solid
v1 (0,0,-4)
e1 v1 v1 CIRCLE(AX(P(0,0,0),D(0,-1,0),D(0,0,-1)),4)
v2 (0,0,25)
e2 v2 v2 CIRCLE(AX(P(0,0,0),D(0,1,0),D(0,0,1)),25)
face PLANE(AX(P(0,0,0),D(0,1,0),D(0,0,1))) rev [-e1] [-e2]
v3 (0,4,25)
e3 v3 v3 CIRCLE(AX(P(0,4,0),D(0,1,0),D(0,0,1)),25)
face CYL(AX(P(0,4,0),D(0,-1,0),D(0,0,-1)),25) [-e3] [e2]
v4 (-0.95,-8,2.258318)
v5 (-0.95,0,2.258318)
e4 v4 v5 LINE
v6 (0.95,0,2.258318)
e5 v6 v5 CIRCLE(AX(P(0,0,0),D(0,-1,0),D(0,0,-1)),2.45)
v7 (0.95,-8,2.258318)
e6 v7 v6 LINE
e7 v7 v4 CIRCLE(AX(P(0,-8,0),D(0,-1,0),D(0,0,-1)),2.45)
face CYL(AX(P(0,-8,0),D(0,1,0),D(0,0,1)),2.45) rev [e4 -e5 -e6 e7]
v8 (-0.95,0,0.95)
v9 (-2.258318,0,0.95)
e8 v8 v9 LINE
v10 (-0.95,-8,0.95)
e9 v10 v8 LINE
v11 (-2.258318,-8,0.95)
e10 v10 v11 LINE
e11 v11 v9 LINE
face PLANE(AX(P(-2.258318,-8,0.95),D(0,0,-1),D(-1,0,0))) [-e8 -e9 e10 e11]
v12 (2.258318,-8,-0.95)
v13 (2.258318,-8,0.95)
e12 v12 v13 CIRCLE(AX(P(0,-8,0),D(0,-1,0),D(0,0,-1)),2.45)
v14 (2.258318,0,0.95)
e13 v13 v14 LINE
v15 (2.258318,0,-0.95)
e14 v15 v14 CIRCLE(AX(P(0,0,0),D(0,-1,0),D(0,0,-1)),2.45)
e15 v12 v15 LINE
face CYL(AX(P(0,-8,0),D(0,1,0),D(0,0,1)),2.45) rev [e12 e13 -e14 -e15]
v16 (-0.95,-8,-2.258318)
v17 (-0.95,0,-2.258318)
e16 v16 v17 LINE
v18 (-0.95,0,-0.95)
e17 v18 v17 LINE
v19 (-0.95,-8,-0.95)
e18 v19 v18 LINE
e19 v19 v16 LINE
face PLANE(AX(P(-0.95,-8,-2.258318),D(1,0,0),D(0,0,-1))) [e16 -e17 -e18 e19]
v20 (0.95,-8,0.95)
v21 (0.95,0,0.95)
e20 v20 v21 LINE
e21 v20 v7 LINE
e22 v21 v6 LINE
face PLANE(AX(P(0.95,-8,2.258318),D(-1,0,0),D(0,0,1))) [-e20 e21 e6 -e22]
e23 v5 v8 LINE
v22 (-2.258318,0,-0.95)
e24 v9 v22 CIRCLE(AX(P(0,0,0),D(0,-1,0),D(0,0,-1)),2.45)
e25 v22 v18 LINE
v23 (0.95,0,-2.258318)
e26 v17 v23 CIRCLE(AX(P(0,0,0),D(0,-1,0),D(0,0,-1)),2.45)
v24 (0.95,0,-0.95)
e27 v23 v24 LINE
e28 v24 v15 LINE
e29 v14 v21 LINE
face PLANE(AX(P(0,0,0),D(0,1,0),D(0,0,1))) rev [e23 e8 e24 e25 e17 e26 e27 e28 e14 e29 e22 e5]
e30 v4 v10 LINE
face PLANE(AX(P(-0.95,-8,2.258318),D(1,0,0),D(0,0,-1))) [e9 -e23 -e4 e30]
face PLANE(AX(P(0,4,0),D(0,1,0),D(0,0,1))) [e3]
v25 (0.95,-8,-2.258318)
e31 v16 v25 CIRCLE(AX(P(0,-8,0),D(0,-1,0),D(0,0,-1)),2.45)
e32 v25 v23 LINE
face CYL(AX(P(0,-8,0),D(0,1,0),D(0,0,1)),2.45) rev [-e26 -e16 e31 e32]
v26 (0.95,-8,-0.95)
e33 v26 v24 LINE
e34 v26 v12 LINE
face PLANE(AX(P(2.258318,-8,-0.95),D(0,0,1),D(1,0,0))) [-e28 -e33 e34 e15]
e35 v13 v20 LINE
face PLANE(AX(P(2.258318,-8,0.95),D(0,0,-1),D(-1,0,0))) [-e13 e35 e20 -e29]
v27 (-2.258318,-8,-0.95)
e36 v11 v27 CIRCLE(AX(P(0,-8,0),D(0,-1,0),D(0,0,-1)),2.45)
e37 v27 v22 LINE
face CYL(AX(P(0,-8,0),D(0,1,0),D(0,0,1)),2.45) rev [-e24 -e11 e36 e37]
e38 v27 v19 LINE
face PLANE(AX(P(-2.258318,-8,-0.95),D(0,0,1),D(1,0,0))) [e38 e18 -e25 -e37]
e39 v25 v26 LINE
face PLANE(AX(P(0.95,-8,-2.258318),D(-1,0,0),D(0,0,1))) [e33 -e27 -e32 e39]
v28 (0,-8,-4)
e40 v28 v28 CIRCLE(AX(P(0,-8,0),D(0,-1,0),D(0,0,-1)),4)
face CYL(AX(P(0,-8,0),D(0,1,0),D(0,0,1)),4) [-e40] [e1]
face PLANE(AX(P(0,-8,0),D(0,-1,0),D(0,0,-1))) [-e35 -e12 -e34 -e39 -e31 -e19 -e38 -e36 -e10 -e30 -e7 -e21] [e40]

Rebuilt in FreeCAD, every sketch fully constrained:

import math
import FreeCAD as App
import Part
import Sketcher
from FreeCAD import Vector
Q = App.Units.Quantity

doc = App.newDocument("Part")
body = doc.addObject("PartDesign::Body", "Body")

sketch1 = doc.addObject("Sketcher::SketchObject", "Sketch")
body.addObject(sketch1)
sketch1.AttachmentSupport = (doc.XZ_Plane, [""])
sketch1.MapMode = "FlatFace"
sketch1.addGeometry(Part.Circle(Vector(0, 0, 0), Vector(0, 0, 1), 25), False)
sketch1.addConstraint([
    Sketcher.Constraint("Coincident", 0, 3, -1, 1),
    Sketcher.Constraint("Diameter", 0, Q("50 mm")),
])
pad1 = doc.addObject("PartDesign::Pad", "Pad")
body.addObject(pad1)
pad1.Profile = sketch1
pad1.Length = 4
pad1.Reversed = True

sketch2 = doc.addObject("Sketcher::SketchObject", "Sketch001")
body.addObject(sketch2)
sketch2.AttachmentSupport = (doc.XZ_Plane, [""])
sketch2.MapMode = "FlatFace"
sketch2.addGeometry([
    Part.Circle(Vector(0, 0, 0), Vector(0, 0, 1), 4),
    Part.ArcOfCircle(Part.Circle(Vector(0, 0, 0), Vector(0, 0, 1), 2.4), math.radians(157), math.radians(203)),
    Part.LineSegment(Vector(-2.3, 0.9, 0), Vector(-0.9, 0.9, 0)),
    Part.LineSegment(Vector(-0.9, 0.9, 0), Vector(-0.9, 2.3, 0)),
    Part.ArcOfCircle(Part.Circle(Vector(0, 0, 0), Vector(0, 0, 1), 2.4), math.radians(67), math.radians(113)),
    Part.LineSegment(Vector(0.9, 2.3, 0), Vector(0.9, 0.9, 0)),
    Part.LineSegment(Vector(0.9, 0.9, 0), Vector(2.3, 0.9, 0)),
    Part.ArcOfCircle(Part.Circle(Vector(0, 0, 0), Vector(0, 0, 1), 2.4), math.radians(-23), math.radians(23)),
    Part.LineSegment(Vector(2.3, -0.9, 0), Vector(0.9, -0.9, 0)),
    Part.LineSegment(Vector(0.9, -0.9, 0), Vector(0.9, -2.3, 0)),
    Part.ArcOfCircle(Part.Circle(Vector(0, 0, 0), Vector(0, 0, 1), 2.4), math.radians(-113), math.radians(-67)),
    Part.LineSegment(Vector(-0.9, -2.3, 0), Vector(-0.9, -0.9, 0)),
    Part.LineSegment(Vector(-0.9, -0.9, 0), Vector(-2.3, -0.9, 0)),
], False)
sketch2.addConstraint([
    Sketcher.Constraint("Coincident", 1, 1, 2, 1),
    Sketcher.Constraint("Coincident", 2, 2, 3, 1),
    Sketcher.Constraint("Coincident", 3, 2, 4, 2),
    Sketcher.Constraint("Coincident", 4, 1, 5, 1),
    Sketcher.Constraint("Coincident", 5, 2, 6, 1),
    Sketcher.Constraint("Coincident", 6, 2, 7, 2),
    Sketcher.Constraint("Coincident", 7, 1, 8, 1),
    Sketcher.Constraint("Coincident", 8, 2, 9, 1),
    Sketcher.Constraint("Coincident", 9, 2, 10, 2),
    Sketcher.Constraint("Coincident", 10, 1, 11, 1),
    Sketcher.Constraint("Coincident", 11, 2, 12, 1),
    Sketcher.Constraint("Coincident", 12, 2, 1, 2),
    Sketcher.Constraint("Horizontal", 2),
    Sketcher.Constraint("Vertical", 3),
    Sketcher.Constraint("Vertical", 5),
    Sketcher.Constraint("Horizontal", 6),
    Sketcher.Constraint("Horizontal", 8),
    Sketcher.Constraint("Vertical", 9),
    Sketcher.Constraint("Vertical", 11),
    Sketcher.Constraint("Horizontal", 12),
    Sketcher.Constraint("Coincident", 0, 3, -1, 1),
    Sketcher.Constraint("Coincident", 1, 3, -1, 1),
    Sketcher.Constraint("Coincident", 4, 3, -1, 1),
    Sketcher.Constraint("Coincident", 7, 3, -1, 1),
    Sketcher.Constraint("Coincident", 10, 3, -1, 1),
    Sketcher.Constraint("Equal", 1, 4),
    Sketcher.Constraint("Equal", 4, 7),
    Sketcher.Constraint("Equal", 7, 10),
    Sketcher.Constraint("Symmetric", 2, 2, 8, 2, -1, 1),
    Sketcher.Constraint("Symmetric", 5, 2, 11, 2, -1, 1),
    Sketcher.Constraint("Symmetric", 2, 2, 5, 2, -2),
    Sketcher.Constraint("Equal", 12, 3),
    Sketcher.Constraint("Diameter", 0, Q("8 mm")),
    Sketcher.Constraint("Radius", 1, Q("2.45 mm")),
    Sketcher.Constraint("DistanceX", 3, 2, 4, 1, Q("1.9 mm")),
])
pad2 = doc.addObject("PartDesign::Pad", "Pad001")
body.addObject(pad2)
pad2.Profile = sketch2
pad2.Length = 8

doc.recompute()
